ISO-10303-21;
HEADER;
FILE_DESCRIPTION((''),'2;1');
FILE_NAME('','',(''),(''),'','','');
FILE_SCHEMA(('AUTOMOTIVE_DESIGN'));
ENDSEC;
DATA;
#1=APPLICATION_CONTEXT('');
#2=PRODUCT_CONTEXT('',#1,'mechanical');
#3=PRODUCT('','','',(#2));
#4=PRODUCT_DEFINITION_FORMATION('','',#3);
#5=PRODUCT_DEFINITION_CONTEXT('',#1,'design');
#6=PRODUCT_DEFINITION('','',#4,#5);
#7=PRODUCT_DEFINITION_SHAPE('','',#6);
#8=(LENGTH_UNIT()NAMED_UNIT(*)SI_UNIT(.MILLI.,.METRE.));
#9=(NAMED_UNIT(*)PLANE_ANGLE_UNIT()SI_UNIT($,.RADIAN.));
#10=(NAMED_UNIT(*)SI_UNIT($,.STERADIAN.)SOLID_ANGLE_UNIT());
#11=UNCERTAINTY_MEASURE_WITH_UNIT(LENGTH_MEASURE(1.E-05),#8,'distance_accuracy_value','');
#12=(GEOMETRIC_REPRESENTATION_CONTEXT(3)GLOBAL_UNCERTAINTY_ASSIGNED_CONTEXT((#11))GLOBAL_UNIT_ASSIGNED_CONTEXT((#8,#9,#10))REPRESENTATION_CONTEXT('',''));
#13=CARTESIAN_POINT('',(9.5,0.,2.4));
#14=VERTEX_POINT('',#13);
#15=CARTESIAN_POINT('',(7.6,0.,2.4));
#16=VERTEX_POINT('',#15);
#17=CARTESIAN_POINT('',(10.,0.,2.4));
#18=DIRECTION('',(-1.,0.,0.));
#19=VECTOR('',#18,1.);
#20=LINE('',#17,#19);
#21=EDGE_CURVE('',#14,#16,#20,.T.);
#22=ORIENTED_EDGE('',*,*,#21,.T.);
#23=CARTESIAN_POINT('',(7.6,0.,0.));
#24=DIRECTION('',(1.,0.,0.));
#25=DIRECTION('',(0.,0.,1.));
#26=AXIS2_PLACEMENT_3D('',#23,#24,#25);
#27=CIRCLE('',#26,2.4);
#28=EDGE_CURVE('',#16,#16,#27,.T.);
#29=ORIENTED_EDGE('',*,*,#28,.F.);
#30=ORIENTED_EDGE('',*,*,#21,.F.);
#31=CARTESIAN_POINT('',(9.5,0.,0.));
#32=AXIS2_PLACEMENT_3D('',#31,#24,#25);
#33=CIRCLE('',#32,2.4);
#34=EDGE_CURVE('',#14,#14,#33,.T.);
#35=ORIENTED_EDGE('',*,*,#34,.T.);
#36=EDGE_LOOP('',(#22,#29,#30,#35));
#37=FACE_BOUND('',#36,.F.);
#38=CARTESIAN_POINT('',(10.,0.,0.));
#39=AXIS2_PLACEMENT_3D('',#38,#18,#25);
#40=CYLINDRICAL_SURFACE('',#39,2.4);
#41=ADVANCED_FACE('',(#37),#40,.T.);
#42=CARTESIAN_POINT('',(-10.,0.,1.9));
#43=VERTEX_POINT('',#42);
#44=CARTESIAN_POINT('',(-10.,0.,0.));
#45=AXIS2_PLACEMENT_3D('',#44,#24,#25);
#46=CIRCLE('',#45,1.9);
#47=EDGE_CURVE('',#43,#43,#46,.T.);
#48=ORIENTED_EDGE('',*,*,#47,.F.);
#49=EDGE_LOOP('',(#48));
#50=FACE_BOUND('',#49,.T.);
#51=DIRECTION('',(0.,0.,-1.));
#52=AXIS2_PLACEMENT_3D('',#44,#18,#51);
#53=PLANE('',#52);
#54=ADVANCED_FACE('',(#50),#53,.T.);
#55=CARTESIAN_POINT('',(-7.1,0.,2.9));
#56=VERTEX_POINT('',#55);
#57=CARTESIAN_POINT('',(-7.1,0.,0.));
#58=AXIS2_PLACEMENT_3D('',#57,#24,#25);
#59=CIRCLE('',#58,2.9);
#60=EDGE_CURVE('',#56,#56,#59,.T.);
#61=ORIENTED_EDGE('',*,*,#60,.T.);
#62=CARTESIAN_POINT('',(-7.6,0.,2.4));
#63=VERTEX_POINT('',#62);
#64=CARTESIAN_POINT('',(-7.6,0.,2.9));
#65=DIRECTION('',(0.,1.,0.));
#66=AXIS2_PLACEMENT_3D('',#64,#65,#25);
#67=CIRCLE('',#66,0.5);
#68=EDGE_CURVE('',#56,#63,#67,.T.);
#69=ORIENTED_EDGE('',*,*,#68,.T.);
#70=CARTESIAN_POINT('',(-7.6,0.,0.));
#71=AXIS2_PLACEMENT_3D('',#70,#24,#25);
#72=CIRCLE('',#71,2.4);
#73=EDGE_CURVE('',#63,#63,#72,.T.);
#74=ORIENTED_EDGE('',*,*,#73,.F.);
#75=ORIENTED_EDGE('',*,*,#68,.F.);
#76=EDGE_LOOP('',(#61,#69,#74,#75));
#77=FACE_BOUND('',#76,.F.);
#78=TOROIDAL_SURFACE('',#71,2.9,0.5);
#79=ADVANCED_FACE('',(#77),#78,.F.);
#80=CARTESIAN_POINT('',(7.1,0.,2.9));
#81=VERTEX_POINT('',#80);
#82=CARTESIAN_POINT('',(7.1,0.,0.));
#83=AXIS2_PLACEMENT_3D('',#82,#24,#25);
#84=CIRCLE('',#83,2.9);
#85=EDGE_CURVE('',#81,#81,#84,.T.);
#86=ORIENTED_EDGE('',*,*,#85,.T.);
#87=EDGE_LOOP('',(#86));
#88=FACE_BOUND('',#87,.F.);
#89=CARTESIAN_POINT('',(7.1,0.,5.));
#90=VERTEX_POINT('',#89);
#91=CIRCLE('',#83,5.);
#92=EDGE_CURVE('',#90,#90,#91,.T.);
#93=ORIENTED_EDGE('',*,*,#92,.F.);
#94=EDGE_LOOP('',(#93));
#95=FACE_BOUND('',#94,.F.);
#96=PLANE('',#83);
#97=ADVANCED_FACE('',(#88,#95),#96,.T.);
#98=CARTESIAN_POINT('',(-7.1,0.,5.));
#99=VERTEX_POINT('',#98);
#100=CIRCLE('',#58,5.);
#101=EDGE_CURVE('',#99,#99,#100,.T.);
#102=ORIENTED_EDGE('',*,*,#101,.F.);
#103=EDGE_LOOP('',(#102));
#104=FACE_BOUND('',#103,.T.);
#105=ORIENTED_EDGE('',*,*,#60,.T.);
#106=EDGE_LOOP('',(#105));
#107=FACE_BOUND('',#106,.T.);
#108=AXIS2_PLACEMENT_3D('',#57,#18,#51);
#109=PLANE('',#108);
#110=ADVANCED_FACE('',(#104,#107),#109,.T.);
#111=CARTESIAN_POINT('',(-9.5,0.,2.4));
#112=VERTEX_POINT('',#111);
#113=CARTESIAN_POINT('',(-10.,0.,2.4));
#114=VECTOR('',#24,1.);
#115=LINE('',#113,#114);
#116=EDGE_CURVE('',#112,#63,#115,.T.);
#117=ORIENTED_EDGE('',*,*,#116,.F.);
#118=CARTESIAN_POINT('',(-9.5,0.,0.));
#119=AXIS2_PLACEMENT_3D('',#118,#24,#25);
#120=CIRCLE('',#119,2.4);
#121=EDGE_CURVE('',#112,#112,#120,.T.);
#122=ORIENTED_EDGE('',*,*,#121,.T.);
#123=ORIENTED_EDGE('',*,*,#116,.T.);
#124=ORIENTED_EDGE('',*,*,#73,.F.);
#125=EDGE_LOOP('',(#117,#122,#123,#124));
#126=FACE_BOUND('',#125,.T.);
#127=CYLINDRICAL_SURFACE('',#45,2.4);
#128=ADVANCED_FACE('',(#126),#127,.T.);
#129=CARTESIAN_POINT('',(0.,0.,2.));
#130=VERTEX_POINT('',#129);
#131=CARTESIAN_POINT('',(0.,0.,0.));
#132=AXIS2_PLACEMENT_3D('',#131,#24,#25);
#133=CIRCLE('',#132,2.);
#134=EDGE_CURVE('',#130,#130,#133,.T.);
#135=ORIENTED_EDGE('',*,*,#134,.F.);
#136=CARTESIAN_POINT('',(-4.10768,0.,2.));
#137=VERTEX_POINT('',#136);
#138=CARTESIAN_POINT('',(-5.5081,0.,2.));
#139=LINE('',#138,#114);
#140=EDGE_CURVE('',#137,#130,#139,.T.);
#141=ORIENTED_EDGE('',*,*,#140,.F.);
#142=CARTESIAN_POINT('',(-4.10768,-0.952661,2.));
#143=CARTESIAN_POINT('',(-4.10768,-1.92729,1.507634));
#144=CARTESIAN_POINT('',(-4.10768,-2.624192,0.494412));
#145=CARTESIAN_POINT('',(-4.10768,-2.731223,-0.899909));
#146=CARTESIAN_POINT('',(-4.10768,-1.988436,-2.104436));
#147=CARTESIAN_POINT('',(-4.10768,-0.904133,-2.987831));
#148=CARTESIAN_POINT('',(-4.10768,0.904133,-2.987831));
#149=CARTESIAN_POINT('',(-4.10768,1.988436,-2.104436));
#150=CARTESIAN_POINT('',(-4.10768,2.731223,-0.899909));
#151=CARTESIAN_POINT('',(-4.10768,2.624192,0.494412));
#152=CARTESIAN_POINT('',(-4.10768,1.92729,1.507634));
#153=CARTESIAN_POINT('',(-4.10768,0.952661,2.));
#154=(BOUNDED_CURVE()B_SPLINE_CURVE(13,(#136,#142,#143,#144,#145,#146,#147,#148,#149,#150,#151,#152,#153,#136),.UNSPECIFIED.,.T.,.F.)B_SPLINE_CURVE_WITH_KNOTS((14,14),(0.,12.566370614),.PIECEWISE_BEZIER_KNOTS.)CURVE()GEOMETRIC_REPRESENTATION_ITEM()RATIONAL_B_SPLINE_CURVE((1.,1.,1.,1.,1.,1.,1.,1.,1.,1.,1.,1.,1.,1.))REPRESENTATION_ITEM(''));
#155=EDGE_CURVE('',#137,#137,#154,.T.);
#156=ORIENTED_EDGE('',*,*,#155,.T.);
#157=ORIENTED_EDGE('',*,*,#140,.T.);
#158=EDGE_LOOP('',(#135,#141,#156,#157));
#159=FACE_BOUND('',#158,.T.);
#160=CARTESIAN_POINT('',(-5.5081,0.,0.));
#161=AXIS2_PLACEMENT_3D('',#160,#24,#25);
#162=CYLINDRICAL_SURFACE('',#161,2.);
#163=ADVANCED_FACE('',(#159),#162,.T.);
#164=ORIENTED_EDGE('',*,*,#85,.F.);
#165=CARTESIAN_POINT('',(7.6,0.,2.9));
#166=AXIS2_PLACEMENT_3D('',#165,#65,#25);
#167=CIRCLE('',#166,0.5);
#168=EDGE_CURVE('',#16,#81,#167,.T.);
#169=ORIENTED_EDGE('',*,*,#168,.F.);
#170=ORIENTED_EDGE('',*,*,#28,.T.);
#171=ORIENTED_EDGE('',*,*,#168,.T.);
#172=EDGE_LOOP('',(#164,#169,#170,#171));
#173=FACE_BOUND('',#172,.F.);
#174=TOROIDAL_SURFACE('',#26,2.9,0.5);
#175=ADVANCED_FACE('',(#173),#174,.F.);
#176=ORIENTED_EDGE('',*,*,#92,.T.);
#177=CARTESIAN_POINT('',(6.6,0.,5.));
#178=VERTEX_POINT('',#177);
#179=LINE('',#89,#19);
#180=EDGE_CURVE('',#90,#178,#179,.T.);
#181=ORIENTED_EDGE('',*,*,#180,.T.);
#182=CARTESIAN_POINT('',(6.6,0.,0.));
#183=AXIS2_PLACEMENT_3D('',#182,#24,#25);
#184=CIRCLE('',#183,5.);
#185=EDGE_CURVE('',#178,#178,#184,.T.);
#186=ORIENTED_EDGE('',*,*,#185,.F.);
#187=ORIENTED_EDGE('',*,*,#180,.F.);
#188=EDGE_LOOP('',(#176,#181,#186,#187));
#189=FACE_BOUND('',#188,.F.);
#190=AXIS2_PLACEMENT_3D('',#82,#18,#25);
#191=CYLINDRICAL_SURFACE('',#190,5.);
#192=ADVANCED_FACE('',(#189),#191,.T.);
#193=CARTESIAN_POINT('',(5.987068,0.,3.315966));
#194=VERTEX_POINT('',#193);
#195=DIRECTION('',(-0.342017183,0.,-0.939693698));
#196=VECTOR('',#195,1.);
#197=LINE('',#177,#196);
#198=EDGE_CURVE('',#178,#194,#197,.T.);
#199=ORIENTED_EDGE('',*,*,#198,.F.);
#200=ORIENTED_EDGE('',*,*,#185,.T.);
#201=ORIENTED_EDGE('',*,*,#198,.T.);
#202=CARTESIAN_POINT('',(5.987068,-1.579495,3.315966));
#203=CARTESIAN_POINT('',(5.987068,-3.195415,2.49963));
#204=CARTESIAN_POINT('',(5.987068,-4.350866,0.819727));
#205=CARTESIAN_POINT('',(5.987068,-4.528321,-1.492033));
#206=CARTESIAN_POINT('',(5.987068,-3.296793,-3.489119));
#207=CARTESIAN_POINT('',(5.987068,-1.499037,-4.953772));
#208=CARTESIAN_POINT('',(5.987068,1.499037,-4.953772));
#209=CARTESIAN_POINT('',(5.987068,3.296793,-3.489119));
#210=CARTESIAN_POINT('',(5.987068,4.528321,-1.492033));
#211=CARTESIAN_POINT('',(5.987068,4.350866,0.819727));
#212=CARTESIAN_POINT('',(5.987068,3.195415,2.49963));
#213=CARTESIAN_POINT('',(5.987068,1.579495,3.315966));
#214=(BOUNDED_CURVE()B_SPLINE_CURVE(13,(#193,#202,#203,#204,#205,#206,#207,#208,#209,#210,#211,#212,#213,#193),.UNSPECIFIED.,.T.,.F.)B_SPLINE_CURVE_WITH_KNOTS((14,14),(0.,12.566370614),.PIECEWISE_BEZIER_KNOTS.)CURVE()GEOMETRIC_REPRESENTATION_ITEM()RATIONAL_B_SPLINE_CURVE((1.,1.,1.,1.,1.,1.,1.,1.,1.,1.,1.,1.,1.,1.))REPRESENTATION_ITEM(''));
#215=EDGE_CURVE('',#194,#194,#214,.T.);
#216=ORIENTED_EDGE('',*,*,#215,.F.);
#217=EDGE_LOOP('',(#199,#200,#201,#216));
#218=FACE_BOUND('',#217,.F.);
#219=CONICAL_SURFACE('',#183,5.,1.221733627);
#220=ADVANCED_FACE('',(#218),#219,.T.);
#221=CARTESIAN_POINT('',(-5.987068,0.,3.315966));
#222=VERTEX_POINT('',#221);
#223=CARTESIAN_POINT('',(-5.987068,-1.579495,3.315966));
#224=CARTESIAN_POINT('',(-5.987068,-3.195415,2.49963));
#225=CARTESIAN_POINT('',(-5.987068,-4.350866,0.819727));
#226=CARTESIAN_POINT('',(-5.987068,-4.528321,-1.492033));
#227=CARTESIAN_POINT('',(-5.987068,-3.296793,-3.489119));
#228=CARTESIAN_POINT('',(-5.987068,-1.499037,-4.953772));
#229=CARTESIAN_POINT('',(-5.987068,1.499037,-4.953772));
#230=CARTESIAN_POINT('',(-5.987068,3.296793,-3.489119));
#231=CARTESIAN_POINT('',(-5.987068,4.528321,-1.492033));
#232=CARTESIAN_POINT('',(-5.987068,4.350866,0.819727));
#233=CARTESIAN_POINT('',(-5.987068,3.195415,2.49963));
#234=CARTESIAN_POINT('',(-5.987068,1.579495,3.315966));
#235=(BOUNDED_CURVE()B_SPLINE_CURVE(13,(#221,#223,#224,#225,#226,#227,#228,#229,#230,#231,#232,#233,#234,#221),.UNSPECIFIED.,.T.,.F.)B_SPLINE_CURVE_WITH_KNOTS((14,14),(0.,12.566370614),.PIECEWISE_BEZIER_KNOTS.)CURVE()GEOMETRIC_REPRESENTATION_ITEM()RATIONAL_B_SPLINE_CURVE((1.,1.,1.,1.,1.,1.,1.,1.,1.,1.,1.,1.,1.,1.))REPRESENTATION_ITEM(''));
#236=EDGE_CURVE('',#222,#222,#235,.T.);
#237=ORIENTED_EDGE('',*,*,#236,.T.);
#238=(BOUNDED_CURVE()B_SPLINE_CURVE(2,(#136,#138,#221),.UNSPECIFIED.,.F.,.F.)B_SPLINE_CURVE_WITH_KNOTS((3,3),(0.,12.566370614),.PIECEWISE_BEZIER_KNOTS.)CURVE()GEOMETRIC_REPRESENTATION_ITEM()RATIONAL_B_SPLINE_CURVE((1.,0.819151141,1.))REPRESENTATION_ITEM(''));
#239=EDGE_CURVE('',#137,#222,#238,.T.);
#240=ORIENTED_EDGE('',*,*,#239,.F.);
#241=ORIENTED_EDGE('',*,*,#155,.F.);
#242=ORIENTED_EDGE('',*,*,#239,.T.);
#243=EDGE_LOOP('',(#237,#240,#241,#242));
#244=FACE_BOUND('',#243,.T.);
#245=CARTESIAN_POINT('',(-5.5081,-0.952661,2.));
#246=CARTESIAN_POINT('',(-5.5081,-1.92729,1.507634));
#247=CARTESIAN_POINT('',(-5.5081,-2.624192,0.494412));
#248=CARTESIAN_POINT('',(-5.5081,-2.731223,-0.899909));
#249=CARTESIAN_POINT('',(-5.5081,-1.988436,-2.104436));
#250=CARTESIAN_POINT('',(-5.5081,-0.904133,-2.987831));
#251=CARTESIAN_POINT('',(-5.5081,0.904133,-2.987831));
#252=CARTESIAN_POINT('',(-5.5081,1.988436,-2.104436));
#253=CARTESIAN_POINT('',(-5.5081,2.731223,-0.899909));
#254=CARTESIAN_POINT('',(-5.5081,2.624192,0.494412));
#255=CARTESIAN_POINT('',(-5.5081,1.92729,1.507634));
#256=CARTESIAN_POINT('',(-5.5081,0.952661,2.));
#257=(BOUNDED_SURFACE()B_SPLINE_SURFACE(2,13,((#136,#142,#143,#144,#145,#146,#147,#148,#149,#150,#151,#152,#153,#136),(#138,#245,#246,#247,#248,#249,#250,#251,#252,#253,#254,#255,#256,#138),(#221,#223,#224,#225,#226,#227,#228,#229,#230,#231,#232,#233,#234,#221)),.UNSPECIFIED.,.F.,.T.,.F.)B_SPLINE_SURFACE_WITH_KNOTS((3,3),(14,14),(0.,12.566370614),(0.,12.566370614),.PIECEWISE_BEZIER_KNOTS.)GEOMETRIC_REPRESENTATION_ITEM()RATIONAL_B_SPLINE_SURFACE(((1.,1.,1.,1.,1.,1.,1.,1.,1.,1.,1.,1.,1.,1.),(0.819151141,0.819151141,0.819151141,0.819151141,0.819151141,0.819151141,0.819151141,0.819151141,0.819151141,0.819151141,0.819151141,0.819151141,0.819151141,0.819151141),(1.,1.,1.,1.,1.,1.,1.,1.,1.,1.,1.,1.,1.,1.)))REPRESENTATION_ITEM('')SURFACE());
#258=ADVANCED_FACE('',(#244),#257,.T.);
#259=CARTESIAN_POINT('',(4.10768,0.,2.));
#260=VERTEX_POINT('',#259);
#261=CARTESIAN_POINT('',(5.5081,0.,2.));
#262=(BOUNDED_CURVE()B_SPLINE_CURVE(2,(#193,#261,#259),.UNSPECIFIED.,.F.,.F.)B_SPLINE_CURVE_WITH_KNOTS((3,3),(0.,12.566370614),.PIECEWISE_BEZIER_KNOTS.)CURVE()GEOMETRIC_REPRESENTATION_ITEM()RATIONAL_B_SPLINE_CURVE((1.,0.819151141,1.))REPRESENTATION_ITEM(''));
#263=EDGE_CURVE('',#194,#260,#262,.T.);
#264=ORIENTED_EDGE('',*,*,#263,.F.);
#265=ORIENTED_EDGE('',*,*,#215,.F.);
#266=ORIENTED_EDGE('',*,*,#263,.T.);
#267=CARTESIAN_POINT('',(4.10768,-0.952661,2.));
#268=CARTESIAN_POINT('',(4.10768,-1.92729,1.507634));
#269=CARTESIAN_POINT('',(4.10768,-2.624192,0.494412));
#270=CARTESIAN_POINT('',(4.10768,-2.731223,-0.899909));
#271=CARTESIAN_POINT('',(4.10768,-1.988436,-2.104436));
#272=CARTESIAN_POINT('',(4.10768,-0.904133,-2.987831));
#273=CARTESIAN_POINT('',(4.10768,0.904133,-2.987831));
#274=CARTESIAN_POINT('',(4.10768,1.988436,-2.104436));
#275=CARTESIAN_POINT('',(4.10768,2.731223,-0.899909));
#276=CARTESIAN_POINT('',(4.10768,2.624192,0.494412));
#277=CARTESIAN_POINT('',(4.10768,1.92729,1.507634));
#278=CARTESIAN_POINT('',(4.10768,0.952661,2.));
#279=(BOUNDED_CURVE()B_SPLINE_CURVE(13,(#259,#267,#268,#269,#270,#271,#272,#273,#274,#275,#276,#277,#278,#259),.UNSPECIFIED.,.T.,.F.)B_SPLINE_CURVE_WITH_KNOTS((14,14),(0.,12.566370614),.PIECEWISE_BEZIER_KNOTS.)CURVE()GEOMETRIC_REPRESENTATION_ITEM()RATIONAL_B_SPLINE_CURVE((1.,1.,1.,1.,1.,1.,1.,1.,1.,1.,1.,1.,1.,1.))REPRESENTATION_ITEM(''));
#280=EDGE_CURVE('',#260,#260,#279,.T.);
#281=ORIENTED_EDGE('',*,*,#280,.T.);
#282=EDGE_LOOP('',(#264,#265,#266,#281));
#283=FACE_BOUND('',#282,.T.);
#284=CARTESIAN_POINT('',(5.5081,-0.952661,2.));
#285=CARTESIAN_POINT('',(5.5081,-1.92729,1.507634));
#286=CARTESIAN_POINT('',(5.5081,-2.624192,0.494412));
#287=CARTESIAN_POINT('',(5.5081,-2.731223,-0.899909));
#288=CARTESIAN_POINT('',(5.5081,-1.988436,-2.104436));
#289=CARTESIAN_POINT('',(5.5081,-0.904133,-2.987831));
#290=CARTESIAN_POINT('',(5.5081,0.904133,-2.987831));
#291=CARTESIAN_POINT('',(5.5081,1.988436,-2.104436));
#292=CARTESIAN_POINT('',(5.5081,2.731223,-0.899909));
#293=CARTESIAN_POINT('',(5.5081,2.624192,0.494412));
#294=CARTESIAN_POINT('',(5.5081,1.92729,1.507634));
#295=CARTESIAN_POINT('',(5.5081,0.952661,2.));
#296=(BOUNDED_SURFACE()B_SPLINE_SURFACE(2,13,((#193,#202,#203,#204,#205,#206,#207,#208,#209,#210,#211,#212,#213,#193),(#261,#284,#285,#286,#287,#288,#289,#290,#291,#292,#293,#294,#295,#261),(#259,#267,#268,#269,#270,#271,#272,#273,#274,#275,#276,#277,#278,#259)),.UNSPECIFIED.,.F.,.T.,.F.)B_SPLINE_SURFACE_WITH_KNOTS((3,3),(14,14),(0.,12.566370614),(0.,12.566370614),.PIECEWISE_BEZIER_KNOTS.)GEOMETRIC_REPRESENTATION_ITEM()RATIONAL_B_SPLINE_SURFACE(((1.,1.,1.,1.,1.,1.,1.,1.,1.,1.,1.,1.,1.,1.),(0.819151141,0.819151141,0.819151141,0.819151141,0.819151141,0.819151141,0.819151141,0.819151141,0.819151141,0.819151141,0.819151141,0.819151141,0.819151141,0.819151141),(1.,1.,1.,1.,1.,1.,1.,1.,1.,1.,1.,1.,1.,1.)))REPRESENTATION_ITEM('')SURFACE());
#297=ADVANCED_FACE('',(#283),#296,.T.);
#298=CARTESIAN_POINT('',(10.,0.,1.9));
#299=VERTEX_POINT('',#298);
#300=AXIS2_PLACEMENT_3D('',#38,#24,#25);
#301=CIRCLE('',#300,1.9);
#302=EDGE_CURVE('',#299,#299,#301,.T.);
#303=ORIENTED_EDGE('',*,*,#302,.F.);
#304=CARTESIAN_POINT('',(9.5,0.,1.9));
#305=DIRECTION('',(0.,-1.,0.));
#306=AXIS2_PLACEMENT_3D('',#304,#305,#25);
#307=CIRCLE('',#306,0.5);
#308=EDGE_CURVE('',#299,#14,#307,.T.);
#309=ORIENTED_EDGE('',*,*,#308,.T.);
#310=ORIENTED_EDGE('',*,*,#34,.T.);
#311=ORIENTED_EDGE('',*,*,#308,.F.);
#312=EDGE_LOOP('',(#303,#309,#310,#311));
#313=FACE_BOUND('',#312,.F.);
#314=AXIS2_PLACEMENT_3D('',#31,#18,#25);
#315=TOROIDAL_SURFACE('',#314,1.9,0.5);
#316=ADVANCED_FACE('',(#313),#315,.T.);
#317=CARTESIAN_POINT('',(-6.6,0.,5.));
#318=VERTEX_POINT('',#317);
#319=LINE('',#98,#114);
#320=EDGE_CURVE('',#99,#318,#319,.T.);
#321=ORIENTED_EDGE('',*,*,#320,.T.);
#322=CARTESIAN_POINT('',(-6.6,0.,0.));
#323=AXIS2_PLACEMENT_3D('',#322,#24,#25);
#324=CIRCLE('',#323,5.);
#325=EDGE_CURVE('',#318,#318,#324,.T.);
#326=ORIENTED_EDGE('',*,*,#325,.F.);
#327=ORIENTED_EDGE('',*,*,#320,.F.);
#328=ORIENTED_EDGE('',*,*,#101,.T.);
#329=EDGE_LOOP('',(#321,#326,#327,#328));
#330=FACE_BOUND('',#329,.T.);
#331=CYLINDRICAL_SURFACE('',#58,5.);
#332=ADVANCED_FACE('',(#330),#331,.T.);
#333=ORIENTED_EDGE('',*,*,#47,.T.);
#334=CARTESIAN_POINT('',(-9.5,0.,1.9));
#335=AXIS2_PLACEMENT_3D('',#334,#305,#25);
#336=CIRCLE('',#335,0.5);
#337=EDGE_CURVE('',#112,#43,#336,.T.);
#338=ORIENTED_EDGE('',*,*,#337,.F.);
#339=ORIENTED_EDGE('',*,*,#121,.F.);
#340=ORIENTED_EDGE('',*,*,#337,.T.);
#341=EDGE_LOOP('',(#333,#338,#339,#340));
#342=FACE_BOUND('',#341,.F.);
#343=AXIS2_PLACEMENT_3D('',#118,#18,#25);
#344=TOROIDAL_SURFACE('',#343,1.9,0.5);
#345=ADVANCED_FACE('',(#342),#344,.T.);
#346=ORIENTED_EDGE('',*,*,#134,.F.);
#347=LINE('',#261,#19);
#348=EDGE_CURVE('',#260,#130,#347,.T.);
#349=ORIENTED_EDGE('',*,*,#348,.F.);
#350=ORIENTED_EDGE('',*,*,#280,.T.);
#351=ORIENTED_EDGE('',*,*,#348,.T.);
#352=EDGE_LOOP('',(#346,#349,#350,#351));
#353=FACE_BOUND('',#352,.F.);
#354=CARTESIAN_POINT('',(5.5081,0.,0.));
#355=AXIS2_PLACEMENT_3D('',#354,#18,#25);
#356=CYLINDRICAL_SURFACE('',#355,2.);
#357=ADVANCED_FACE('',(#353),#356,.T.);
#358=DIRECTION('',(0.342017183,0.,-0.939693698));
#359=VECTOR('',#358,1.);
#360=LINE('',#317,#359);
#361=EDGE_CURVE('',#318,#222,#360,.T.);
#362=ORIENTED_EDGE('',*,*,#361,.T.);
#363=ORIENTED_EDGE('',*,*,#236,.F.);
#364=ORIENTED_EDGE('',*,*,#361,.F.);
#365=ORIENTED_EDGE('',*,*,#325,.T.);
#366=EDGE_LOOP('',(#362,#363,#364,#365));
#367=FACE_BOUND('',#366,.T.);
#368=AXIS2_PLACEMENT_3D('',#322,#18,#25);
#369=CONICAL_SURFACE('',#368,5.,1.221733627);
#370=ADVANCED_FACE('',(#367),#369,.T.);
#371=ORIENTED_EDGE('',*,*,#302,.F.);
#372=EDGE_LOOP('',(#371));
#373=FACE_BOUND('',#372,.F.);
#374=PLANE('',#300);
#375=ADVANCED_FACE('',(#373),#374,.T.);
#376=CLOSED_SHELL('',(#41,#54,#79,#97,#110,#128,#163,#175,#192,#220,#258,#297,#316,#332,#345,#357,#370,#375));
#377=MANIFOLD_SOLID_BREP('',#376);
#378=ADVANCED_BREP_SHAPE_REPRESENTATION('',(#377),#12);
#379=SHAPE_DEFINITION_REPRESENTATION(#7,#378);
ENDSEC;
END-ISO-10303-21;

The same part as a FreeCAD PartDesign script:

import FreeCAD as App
import Part
import Sketcher
Q = App.Units.Quantity


def edges_at(feature, points):
    """Names of the edges that pass closest to the given points."""
    edges = feature.Shape.Edges
    near = lambda p: min(range(len(edges)), key=lambda i: edges[i].distToShape(Part.Vertex(*p))[0])
    return sorted({f"Edge{near(p) + 1}" for p in points})


def add_polygon(sketch, points):
    """Adds a closed chain of lines whose ends are joined by coincident constraints."""
    first, n = sketch.GeometryCount, len(points)
    for a, b in zip(points, points[1:] + points[:1]):
        sketch.addGeometry(Part.LineSegment(App.Vector(*a, 0), App.Vector(*b, 0)), False)
    for i in range(n):
        sketch.addConstraint(Sketcher.Constraint("Coincident", first + i, 2, first + (i + 1) % n, 1))

doc = App.newDocument("Part")
body = doc.addObject("PartDesign::Body", "Body")

sketch1 = body.newObject("Sketcher::SketchObject", "Sketch")
sketch1.AttachmentSupport = (doc.getObject("XZ_Plane"), [""])
sketch1.MapMode = "FlatFace"
add_polygon(sketch1, [(10, 0), (0, 0), (0, 2), (5.5, 2), (6.6, 5), (7.1, 5), (7.1, 2.4), (10, 2.4)])
sketch1.addConstraint([
    Sketcher.Constraint("Horizontal", 0),
    Sketcher.Constraint("Vertical", 1),
    Sketcher.Constraint("Horizontal", 2),
    Sketcher.Constraint("Horizontal", 4),
    Sketcher.Constraint("Vertical", 5),
    Sketcher.Constraint("Horizontal", 6),
    Sketcher.Constraint("Vertical", 7),
    Sketcher.Constraint("Coincident", 0, 2, -1, 1),
    Sketcher.Constraint("DistanceX", 0, 2, 0, 1, Q("10 mm")),
    Sketcher.Constraint("DistanceY", 1, 1, 1, 2, Q("2 mm")),
    Sketcher.Constraint("DistanceX", 4, 1, 4, 2, Q("0.5 mm")),
    Sketcher.Constraint("DistanceX", 6, 1, 6, 2, Q("2.9 mm")),
    Sketcher.Constraint("DistanceY", 7, 2, 7, 1, Q("2.4 mm")),
    Sketcher.Constraint("DistanceY", -1, 1, 3, 2, Q("5 mm")),
    Sketcher.Constraint("Angle", 3, Q("70.0002 deg")),
])
revolution = body.newObject("PartDesign::Revolution", "Revolution")
revolution.Profile = sketch1
revolution.ReferenceAxis = (sketch1, ["H_Axis"])
revolution.Angle = 360
doc.recompute()

mirrored = body.newObject("PartDesign::Mirrored", "Mirrored")
mirrored.TransformMode = "Transform body"
mirrored.MirrorPlane = (doc.getObject("YZ_Plane"), [""])
body.Tip = mirrored
doc.recompute()

fillet = body.newObject("PartDesign::Fillet", "Fillet")
fillet.Base = (mirrored, edges_at(mirrored, [
    (-7.1, -0.868, -2.238),
    (7.1, -0.868, -2.238),
    (10, -0.868, -2.238),
    (-10, -0.868, -2.238),
]))
fillet.Radius = 0.5
doc.recompute()

fillet2 = body.newObject("PartDesign::Fillet", "Fillet001")
fillet2.Base = (fillet, edges_at(fillet, [(5.508, -0.723, -1.865), (-5.508, -0.723, -1.865)]))
fillet2.Radius = 2

doc.recompute()
